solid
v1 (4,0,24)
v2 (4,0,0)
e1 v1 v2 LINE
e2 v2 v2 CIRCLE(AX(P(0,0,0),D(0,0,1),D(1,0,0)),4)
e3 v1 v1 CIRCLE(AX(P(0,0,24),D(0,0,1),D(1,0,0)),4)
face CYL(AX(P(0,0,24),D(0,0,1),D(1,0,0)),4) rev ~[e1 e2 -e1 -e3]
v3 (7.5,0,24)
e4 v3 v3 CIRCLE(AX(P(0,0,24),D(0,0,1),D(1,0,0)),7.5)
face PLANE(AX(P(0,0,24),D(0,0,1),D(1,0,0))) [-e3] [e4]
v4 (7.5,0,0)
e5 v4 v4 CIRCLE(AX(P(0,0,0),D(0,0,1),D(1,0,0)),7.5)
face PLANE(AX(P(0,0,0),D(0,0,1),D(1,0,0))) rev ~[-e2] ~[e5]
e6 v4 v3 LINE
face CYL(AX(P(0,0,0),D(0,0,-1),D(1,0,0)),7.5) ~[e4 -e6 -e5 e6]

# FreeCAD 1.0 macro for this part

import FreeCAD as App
import Part
import Sketcher
Q = App.Units.Quantity

doc = App.newDocument("Part")
body = doc.addObject("PartDesign::Body", "Body")

sketch1 = body.newObject("Sketcher::SketchObject", "Sketch")
sketch1.AttachmentSupport = (doc.getObject("XY_Plane"), [""])
sketch1.MapMode = "FlatFace"
sketch1.addGeometry(Part.Circle(App.Vector(0, 0, 0), App.Vector(0, 0, 1), 8), False)
sketch1.addConstraint(Sketcher.Constraint("Coincident", 0, 3, -1, 1))
sketch1.addConstraint(Sketcher.Constraint("Diameter", 0, Q("15 mm")))
pad1 = body.newObject("PartDesign::Pad", "Pad")
pad1.Profile = sketch1
pad1.Length = 24

sketch2 = body.newObject("Sketcher::SketchObject", "Sketch001")
sketch2.AttachmentSupport = (doc.getObject("XY_Plane"), [""])
sketch2.MapMode = "FlatFace"
sketch2.AttachmentOffset = App.Placement(App.Vector(0, 0, 24), App.Rotation())
sketch2.addGeometry(Part.Circle(App.Vector(0, 0, 0), App.Vector(0, 0, 1), 4), False)
sketch2.addConstraint(Sketcher.Constraint("Coincident", 0, 3, -1, 1))
sketch2.addConstraint(Sketcher.Constraint("Diameter", 0, Q("8 mm")))
pocket1 = body.newObject("PartDesign::Pocket", "Pocket")
pocket1.Profile = sketch2
pocket1.Type = "ThroughAll"

doc.recompute()
